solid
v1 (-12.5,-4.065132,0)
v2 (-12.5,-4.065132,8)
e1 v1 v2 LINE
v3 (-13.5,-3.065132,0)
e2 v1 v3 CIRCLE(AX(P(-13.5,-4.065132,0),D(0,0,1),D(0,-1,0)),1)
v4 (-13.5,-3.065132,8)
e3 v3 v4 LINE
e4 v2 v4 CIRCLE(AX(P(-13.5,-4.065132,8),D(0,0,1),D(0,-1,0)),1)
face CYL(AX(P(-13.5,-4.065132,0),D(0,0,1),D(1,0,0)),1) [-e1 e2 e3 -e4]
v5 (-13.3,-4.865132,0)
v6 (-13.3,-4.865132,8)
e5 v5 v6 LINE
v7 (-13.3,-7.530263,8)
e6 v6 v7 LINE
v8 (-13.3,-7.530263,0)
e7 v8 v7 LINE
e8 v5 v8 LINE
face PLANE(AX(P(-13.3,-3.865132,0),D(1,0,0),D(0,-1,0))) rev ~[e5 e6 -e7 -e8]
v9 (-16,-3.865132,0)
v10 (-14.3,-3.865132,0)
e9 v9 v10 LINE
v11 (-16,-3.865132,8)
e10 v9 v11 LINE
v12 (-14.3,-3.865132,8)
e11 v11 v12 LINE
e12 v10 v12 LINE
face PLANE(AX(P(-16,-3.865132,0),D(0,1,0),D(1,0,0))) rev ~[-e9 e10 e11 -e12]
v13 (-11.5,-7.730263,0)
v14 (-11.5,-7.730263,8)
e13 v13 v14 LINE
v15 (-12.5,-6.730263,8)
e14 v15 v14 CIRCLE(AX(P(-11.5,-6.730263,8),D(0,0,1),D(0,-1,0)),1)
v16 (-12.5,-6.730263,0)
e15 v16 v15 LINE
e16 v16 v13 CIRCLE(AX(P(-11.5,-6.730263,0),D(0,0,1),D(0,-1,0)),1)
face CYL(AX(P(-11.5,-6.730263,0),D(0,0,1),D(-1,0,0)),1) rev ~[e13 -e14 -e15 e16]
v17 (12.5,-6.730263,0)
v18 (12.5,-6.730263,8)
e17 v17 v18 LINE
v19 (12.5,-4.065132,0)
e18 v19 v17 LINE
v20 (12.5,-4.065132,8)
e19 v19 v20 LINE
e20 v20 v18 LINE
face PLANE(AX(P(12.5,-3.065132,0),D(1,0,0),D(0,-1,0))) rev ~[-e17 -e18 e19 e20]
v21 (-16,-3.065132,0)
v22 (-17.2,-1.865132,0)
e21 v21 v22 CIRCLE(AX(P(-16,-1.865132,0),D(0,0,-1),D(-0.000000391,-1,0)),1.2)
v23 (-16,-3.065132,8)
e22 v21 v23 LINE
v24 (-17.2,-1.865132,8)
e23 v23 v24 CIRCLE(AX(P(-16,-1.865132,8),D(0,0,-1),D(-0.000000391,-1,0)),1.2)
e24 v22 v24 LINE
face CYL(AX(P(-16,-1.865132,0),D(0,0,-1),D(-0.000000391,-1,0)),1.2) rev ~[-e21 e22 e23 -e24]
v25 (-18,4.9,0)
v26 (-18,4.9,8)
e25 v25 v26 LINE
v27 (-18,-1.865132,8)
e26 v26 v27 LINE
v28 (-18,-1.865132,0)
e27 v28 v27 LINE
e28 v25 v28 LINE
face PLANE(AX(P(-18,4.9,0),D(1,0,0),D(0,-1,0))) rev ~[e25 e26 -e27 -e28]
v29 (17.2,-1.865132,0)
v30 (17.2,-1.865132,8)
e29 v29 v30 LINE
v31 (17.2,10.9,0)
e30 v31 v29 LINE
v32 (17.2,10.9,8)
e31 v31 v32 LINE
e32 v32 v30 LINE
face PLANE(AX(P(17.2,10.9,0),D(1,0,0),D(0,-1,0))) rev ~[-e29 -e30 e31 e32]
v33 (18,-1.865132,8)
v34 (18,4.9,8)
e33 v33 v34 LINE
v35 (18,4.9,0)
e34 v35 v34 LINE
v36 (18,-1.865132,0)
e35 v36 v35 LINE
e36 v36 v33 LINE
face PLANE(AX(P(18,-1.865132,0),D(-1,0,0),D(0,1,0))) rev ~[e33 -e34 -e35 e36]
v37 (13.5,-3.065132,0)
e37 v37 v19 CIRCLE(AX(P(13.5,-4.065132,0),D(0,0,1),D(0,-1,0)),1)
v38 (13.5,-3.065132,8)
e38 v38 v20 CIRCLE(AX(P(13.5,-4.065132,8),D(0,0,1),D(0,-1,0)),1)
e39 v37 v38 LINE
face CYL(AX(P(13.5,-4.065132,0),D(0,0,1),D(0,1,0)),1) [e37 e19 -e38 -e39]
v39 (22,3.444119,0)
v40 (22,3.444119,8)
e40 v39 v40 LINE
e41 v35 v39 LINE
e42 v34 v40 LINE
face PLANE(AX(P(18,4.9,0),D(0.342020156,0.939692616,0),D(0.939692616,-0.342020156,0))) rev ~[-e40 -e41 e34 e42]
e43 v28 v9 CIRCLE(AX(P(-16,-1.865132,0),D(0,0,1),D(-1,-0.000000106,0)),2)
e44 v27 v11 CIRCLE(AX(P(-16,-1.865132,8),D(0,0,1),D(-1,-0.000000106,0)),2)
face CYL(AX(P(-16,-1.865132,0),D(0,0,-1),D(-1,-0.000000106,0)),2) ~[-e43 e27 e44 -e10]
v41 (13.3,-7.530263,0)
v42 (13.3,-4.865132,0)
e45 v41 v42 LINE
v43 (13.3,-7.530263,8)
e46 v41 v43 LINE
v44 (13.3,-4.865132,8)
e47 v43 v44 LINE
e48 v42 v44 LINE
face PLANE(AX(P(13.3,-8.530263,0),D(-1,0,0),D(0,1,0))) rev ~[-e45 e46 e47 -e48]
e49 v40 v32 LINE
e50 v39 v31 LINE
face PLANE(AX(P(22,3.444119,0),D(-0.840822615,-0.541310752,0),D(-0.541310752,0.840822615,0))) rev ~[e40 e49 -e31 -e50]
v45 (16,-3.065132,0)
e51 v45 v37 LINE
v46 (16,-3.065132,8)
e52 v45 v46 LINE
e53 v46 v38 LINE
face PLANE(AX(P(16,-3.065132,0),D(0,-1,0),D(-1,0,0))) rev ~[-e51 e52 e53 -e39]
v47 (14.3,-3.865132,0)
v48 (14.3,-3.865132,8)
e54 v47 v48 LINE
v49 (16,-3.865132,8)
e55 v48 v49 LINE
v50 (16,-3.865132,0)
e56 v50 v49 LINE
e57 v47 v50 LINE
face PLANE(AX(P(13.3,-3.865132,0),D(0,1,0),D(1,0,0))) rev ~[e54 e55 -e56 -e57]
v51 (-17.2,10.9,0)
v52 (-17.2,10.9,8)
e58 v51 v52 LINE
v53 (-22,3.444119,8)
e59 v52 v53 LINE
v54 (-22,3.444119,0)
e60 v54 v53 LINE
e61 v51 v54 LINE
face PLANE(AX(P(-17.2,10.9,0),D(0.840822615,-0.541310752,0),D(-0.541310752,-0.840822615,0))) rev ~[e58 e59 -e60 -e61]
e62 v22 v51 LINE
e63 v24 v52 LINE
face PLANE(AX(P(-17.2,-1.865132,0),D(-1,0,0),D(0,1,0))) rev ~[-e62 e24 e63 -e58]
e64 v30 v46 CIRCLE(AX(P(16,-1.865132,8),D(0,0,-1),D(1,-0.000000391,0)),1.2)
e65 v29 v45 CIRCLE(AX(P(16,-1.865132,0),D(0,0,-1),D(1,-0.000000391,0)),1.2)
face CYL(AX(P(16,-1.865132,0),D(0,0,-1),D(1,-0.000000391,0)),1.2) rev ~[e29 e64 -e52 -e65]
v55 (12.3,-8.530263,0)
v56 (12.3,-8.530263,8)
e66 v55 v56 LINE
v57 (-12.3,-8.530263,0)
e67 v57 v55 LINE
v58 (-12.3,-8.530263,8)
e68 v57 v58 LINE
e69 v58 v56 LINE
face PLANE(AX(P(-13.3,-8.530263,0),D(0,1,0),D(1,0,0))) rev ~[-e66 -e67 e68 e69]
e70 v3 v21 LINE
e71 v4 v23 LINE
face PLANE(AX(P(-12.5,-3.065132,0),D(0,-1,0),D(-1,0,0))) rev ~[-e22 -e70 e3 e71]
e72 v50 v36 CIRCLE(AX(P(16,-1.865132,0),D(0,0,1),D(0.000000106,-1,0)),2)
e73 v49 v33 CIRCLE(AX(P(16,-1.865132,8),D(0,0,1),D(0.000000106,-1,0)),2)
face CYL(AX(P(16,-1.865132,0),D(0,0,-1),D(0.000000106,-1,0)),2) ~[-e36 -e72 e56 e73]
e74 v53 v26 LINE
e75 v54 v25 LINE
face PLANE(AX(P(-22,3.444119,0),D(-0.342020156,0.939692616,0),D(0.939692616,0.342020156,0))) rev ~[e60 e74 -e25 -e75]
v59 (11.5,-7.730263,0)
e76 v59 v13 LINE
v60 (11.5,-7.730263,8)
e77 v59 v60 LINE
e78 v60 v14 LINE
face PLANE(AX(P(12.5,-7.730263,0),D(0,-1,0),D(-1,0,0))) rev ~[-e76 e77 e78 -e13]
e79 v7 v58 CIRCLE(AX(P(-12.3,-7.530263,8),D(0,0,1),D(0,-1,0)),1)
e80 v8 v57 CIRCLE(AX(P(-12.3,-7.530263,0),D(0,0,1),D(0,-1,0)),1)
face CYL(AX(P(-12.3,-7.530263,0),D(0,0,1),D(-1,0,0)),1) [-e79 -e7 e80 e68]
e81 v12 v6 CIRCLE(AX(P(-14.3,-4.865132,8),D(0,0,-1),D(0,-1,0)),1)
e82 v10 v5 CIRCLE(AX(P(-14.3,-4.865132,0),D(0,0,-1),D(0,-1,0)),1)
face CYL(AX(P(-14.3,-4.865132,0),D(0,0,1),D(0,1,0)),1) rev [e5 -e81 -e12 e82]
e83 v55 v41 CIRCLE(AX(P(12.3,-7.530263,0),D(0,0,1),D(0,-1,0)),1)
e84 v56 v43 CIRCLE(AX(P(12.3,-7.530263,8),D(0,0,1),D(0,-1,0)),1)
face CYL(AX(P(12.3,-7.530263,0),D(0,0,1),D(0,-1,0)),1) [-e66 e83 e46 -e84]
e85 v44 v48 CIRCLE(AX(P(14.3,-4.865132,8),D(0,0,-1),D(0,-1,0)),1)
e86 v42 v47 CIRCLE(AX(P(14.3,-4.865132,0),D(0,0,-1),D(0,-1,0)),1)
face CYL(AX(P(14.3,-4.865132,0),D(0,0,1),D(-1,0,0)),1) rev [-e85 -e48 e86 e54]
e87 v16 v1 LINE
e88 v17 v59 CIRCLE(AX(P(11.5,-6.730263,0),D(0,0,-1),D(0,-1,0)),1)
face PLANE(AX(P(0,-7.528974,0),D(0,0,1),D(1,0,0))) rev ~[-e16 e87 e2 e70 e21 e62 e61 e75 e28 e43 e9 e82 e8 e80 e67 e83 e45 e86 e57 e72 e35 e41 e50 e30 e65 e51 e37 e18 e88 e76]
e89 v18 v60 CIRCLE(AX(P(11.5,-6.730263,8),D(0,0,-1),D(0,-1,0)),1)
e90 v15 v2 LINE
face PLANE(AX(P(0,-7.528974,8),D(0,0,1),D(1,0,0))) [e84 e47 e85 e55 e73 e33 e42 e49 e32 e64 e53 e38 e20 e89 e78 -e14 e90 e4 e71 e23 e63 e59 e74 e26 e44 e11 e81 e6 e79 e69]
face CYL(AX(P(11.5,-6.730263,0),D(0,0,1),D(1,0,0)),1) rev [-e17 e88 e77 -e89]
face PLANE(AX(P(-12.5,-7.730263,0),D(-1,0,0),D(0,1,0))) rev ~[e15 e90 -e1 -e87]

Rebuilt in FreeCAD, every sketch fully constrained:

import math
import FreeCAD as App
import Part
import Sketcher

V = App.Vector
Q = App.Units.Quantity


def edges_at(feature, points):
    """Names of the edges that pass closest to the given points."""
    edges = feature.Shape.Edges
    near = lambda p: min(range(len(edges)), key=lambda i: edges[i].distToShape(Part.Vertex(*p))[0])
    return sorted({f"Edge{near(p) + 1}" for p in points})

doc = App.newDocument("Part")
body = doc.addObject("PartDesign::Body", "Body")

sketch1 = body.newObject("Sketcher::SketchObject", "Sketch")
sketch1.AttachmentSupport = (doc.getObject("XY_Plane"), [""])
sketch1.MapMode = "FlatFace"
sketch1.addGeometry(Part.LineSegment(V(-12.5, -7.730263, 0), V(-12.5, -3.065132, 0)), False)
sketch1.addGeometry(Part.LineSegment(V(-12.5, -3.065132, 0), V(-16, -3.065132, 0)), False)
sketch1.addGeometry(Part.ArcOfCircle(Part.Circle(V(-16, -1.865132, 0), V(0, 0, 1), 1.2), math.radians(-179.999978), math.radians(-90.000022)), False)
sketch1.addGeometry(Part.LineSegment(V(-17.2, -1.865132, 0), V(-17.2, 10.9, 0)), False)
sketch1.addGeometry(Part.LineSegment(V(-17.2, 10.9, 0), V(-22, 3.444119, 0)), False)
sketch1.addGeometry(Part.LineSegment(V(-22, 3.444119, 0), V(-18, 4.9, 0)), False)
sketch1.addGeometry(Part.LineSegment(V(-18, 4.9, 0), V(-18, -1.865132, 0)), False)
sketch1.addGeometry(Part.ArcOfCircle(Part.Circle(V(-16, -1.865132, 0), V(0, 0, 1), 2), math.radians(-179.999994), math.radians(-90.000006)), False)
sketch1.addGeometry(Part.LineSegment(V(-16, -3.865132, 0), V(-13.3, -3.865132, 0)), False)
sketch1.addGeometry(Part.LineSegment(V(-13.3, -3.865132, 0), V(-13.3, -8.530263, 0)), False)
sketch1.addGeometry(Part.LineSegment(V(-13.3, -8.530263, 0), V(13.3, -8.530263, 0)), False)
sketch1.addGeometry(Part.LineSegment(V(13.3, -8.530263, 0), V(13.3, -3.865132, 0)), False)
sketch1.addGeometry(Part.LineSegment(V(13.3, -3.865132, 0), V(16, -3.865132, 0)), False)
sketch1.addGeometry(Part.ArcOfCircle(Part.Circle(V(16, -1.865132, 0), V(0, 0, 1), 2), math.radians(-89.999994), math.radians(-0.000006)), False)
sketch1.addGeometry(Part.LineSegment(V(18, -1.865132, 0), V(18, 4.9, 0)), False)
sketch1.addGeometry(Part.LineSegment(V(18, 4.9, 0), V(22, 3.444119, 0)), False)
sketch1.addGeometry(Part.LineSegment(V(22, 3.444119, 0), V(17.2, 10.9, 0)), False)
sketch1.addGeometry(Part.LineSegment(V(17.2, 10.9, 0), V(17.2, -1.865132, 0)), False)
sketch1.addGeometry(Part.ArcOfCircle(Part.Circle(V(16, -1.865132, 0), V(0, 0, 1), 1.2), math.radians(-89.999978), math.radians(-0.000022)), False)
sketch1.addGeometry(Part.LineSegment(V(16, -3.065132, 0), V(12.5, -3.065132, 0)), False)
sketch1.addGeometry(Part.LineSegment(V(12.5, -3.065132, 0), V(12.5, -7.730263, 0)), False)
sketch1.addGeometry(Part.LineSegment(V(12.5, -7.730263, 0), V(-12.5, -7.730263, 0)), False)
sketch1.addConstraint(Sketcher.Constraint("Coincident", 0, 2, 1, 1))
sketch1.addConstraint(Sketcher.Constraint("Tangent", 1, 2, 2, 2))
sketch1.addConstraint(Sketcher.Constraint("Tangent", 2, 1, 3, 1))
sketch1.addConstraint(Sketcher.Constraint("Coincident", 3, 2, 4, 1))
sketch1.addConstraint(Sketcher.Constraint("Coincident", 4, 2, 5, 1))
sketch1.addConstraint(Sketcher.Constraint("Coincident", 5, 2, 6, 1))
sketch1.addConstraint(Sketcher.Constraint("Tangent", 6, 2, 7, 1))
sketch1.addConstraint(Sketcher.Constraint("Tangent", 7, 2, 8, 1))
sketch1.addConstraint(Sketcher.Constraint("Coincident", 8, 2, 9, 1))
sketch1.addConstraint(Sketcher.Constraint("Coincident", 9, 2, 10, 1))
sketch1.addConstraint(Sketcher.Constraint("Coincident", 10, 2, 11, 1))
sketch1.addConstraint(Sketcher.Constraint("Coincident", 11, 2, 12, 1))
sketch1.addConstraint(Sketcher.Constraint("Tangent", 12, 2, 13, 1))
sketch1.addConstraint(Sketcher.Constraint("Tangent", 13, 2, 14, 1))
sketch1.addConstraint(Sketcher.Constraint("Coincident", 14, 2, 15, 1))
sketch1.addConstraint(Sketcher.Constraint("Coincident", 15, 2, 16, 1))
sketch1.addConstraint(Sketcher.Constraint("Coincident", 16, 2, 17, 1))
sketch1.addConstraint(Sketcher.Constraint("Tangent", 17, 2, 18, 2))
sketch1.addConstraint(Sketcher.Constraint("Tangent", 18, 1, 19, 1))
sketch1.addConstraint(Sketcher.Constraint("Coincident", 19, 2, 20, 1))
sketch1.addConstraint(Sketcher.Constraint("Coincident", 20, 2, 21, 1))
sketch1.addConstraint(Sketcher.Constraint("Coincident", 21, 2, 0, 1))
sketch1.addConstraint(Sketcher.Constraint("Vertical", 0))
sketch1.addConstraint(Sketcher.Constraint("Horizontal", 1))
sketch1.addConstraint(Sketcher.Constraint("Vertical", 3))
sketch1.addConstraint(Sketcher.Constraint("Vertical", 6))
sketch1.addConstraint(Sketcher.Constraint("Horizontal", 8))
sketch1.addConstraint(Sketcher.Constraint("Vertical", 9))
sketch1.addConstraint(Sketcher.Constraint("Horizontal", 10))
sketch1.addConstraint(Sketcher.Constraint("Vertical", 11))
sketch1.addConstraint(Sketcher.Constraint("Horizontal", 12))
sketch1.addConstraint(Sketcher.Constraint("Vertical", 14))
sketch1.addConstraint(Sketcher.Constraint("Vertical", 17))
sketch1.addConstraint(Sketcher.Constraint("Horizontal", 19))
sketch1.addConstraint(Sketcher.Constraint("Vertical", 20))
sketch1.addConstraint(Sketcher.Constraint("Horizontal", 21))
sketch1.addConstraint(Sketcher.Constraint("Coincident", 7, 3, 2, 3))
sketch1.addConstraint(Sketcher.Constraint("Coincident", 18, 3, 13, 3))
sketch1.addConstraint(Sketcher.Constraint("Equal", 7, 13))
sketch1.addConstraint(Sketcher.Constraint("Equal", 2, 18))
sketch1.addConstraint(Sketcher.Constraint("Symmetric", 2, 3, 13, 3, -2))
sketch1.addConstraint(Sketcher.Constraint("Symmetric", 4, 2, 15, 2, -2))
sketch1.addConstraint(Sketcher.Constraint("Horizontal", 5, 2, 14, 2))
sketch1.addConstraint(Sketcher.Constraint("Horizontal", 3, 2, 16, 2))
sketch1.addConstraint(Sketcher.Constraint("Equal", 8, 12))
sketch1.addConstraint(Sketcher.Constraint("Equal", 1, 19))
sketch1.addConstraint(Sketcher.Constraint("Equal", 0, 9))
sketch1.addConstraint(Sketcher.Constraint("Radius", 7, 2.0))
sketch1.addConstraint(Sketcher.Constraint("Radius", 2, 1.2))
sketch1.addConstraint(Sketcher.Constraint("DistanceX", 21, 2, 21, 1, 25.0))
sketch1.addConstraint(Sketcher.Constraint("Angle", 5, Q("20.000001 deg")))
sketch1.addConstraint(Sketcher.Constraint("DistanceX", 1, 2, 1, 1, 3.5))
sketch1.addConstraint(Sketcher.Constraint("DistanceX", 8, 1, 8, 2, 2.7))
sketch1.addConstraint(Sketcher.Constraint("DistanceX", 4, 2, -1, 1, 22.0))
sketch1.addConstraint(Sketcher.Constraint("DistanceY", 5, 2, 3, 2, 6.0))
sketch1.addConstraint(Sketcher.Constraint("DistanceY", -1, 1, 3, 2, 10.9))
sketch1.addConstraint(Sketcher.Constraint("DistanceY", 0, 1, 0, 2, 4.665131))
sketch1.addConstraint(Sketcher.Constraint("DistanceY", 3, 1, 3, 2, 12.765132))
pad1 = body.newObject("PartDesign::Pad", "Pad")
pad1.Profile = sketch1
pad1.Length = 8
doc.recompute()

fillet = body.newObject("PartDesign::Fillet", "Fillet")
fillet.Base = (pad1, edges_at(pad1, [
    (-13.3, -3.865, 4),
    (13.3, -3.865, 4),
    (-12.5, -3.065, 4),
    (12.5, -3.065, 4),
    (-13.3, -8.53, 4),
    (-12.5, -7.73, 4),
    (13.3, -8.53, 4),
    (12.5, -7.73, 4),
]))
fillet.Radius = 1

doc.recompute()
